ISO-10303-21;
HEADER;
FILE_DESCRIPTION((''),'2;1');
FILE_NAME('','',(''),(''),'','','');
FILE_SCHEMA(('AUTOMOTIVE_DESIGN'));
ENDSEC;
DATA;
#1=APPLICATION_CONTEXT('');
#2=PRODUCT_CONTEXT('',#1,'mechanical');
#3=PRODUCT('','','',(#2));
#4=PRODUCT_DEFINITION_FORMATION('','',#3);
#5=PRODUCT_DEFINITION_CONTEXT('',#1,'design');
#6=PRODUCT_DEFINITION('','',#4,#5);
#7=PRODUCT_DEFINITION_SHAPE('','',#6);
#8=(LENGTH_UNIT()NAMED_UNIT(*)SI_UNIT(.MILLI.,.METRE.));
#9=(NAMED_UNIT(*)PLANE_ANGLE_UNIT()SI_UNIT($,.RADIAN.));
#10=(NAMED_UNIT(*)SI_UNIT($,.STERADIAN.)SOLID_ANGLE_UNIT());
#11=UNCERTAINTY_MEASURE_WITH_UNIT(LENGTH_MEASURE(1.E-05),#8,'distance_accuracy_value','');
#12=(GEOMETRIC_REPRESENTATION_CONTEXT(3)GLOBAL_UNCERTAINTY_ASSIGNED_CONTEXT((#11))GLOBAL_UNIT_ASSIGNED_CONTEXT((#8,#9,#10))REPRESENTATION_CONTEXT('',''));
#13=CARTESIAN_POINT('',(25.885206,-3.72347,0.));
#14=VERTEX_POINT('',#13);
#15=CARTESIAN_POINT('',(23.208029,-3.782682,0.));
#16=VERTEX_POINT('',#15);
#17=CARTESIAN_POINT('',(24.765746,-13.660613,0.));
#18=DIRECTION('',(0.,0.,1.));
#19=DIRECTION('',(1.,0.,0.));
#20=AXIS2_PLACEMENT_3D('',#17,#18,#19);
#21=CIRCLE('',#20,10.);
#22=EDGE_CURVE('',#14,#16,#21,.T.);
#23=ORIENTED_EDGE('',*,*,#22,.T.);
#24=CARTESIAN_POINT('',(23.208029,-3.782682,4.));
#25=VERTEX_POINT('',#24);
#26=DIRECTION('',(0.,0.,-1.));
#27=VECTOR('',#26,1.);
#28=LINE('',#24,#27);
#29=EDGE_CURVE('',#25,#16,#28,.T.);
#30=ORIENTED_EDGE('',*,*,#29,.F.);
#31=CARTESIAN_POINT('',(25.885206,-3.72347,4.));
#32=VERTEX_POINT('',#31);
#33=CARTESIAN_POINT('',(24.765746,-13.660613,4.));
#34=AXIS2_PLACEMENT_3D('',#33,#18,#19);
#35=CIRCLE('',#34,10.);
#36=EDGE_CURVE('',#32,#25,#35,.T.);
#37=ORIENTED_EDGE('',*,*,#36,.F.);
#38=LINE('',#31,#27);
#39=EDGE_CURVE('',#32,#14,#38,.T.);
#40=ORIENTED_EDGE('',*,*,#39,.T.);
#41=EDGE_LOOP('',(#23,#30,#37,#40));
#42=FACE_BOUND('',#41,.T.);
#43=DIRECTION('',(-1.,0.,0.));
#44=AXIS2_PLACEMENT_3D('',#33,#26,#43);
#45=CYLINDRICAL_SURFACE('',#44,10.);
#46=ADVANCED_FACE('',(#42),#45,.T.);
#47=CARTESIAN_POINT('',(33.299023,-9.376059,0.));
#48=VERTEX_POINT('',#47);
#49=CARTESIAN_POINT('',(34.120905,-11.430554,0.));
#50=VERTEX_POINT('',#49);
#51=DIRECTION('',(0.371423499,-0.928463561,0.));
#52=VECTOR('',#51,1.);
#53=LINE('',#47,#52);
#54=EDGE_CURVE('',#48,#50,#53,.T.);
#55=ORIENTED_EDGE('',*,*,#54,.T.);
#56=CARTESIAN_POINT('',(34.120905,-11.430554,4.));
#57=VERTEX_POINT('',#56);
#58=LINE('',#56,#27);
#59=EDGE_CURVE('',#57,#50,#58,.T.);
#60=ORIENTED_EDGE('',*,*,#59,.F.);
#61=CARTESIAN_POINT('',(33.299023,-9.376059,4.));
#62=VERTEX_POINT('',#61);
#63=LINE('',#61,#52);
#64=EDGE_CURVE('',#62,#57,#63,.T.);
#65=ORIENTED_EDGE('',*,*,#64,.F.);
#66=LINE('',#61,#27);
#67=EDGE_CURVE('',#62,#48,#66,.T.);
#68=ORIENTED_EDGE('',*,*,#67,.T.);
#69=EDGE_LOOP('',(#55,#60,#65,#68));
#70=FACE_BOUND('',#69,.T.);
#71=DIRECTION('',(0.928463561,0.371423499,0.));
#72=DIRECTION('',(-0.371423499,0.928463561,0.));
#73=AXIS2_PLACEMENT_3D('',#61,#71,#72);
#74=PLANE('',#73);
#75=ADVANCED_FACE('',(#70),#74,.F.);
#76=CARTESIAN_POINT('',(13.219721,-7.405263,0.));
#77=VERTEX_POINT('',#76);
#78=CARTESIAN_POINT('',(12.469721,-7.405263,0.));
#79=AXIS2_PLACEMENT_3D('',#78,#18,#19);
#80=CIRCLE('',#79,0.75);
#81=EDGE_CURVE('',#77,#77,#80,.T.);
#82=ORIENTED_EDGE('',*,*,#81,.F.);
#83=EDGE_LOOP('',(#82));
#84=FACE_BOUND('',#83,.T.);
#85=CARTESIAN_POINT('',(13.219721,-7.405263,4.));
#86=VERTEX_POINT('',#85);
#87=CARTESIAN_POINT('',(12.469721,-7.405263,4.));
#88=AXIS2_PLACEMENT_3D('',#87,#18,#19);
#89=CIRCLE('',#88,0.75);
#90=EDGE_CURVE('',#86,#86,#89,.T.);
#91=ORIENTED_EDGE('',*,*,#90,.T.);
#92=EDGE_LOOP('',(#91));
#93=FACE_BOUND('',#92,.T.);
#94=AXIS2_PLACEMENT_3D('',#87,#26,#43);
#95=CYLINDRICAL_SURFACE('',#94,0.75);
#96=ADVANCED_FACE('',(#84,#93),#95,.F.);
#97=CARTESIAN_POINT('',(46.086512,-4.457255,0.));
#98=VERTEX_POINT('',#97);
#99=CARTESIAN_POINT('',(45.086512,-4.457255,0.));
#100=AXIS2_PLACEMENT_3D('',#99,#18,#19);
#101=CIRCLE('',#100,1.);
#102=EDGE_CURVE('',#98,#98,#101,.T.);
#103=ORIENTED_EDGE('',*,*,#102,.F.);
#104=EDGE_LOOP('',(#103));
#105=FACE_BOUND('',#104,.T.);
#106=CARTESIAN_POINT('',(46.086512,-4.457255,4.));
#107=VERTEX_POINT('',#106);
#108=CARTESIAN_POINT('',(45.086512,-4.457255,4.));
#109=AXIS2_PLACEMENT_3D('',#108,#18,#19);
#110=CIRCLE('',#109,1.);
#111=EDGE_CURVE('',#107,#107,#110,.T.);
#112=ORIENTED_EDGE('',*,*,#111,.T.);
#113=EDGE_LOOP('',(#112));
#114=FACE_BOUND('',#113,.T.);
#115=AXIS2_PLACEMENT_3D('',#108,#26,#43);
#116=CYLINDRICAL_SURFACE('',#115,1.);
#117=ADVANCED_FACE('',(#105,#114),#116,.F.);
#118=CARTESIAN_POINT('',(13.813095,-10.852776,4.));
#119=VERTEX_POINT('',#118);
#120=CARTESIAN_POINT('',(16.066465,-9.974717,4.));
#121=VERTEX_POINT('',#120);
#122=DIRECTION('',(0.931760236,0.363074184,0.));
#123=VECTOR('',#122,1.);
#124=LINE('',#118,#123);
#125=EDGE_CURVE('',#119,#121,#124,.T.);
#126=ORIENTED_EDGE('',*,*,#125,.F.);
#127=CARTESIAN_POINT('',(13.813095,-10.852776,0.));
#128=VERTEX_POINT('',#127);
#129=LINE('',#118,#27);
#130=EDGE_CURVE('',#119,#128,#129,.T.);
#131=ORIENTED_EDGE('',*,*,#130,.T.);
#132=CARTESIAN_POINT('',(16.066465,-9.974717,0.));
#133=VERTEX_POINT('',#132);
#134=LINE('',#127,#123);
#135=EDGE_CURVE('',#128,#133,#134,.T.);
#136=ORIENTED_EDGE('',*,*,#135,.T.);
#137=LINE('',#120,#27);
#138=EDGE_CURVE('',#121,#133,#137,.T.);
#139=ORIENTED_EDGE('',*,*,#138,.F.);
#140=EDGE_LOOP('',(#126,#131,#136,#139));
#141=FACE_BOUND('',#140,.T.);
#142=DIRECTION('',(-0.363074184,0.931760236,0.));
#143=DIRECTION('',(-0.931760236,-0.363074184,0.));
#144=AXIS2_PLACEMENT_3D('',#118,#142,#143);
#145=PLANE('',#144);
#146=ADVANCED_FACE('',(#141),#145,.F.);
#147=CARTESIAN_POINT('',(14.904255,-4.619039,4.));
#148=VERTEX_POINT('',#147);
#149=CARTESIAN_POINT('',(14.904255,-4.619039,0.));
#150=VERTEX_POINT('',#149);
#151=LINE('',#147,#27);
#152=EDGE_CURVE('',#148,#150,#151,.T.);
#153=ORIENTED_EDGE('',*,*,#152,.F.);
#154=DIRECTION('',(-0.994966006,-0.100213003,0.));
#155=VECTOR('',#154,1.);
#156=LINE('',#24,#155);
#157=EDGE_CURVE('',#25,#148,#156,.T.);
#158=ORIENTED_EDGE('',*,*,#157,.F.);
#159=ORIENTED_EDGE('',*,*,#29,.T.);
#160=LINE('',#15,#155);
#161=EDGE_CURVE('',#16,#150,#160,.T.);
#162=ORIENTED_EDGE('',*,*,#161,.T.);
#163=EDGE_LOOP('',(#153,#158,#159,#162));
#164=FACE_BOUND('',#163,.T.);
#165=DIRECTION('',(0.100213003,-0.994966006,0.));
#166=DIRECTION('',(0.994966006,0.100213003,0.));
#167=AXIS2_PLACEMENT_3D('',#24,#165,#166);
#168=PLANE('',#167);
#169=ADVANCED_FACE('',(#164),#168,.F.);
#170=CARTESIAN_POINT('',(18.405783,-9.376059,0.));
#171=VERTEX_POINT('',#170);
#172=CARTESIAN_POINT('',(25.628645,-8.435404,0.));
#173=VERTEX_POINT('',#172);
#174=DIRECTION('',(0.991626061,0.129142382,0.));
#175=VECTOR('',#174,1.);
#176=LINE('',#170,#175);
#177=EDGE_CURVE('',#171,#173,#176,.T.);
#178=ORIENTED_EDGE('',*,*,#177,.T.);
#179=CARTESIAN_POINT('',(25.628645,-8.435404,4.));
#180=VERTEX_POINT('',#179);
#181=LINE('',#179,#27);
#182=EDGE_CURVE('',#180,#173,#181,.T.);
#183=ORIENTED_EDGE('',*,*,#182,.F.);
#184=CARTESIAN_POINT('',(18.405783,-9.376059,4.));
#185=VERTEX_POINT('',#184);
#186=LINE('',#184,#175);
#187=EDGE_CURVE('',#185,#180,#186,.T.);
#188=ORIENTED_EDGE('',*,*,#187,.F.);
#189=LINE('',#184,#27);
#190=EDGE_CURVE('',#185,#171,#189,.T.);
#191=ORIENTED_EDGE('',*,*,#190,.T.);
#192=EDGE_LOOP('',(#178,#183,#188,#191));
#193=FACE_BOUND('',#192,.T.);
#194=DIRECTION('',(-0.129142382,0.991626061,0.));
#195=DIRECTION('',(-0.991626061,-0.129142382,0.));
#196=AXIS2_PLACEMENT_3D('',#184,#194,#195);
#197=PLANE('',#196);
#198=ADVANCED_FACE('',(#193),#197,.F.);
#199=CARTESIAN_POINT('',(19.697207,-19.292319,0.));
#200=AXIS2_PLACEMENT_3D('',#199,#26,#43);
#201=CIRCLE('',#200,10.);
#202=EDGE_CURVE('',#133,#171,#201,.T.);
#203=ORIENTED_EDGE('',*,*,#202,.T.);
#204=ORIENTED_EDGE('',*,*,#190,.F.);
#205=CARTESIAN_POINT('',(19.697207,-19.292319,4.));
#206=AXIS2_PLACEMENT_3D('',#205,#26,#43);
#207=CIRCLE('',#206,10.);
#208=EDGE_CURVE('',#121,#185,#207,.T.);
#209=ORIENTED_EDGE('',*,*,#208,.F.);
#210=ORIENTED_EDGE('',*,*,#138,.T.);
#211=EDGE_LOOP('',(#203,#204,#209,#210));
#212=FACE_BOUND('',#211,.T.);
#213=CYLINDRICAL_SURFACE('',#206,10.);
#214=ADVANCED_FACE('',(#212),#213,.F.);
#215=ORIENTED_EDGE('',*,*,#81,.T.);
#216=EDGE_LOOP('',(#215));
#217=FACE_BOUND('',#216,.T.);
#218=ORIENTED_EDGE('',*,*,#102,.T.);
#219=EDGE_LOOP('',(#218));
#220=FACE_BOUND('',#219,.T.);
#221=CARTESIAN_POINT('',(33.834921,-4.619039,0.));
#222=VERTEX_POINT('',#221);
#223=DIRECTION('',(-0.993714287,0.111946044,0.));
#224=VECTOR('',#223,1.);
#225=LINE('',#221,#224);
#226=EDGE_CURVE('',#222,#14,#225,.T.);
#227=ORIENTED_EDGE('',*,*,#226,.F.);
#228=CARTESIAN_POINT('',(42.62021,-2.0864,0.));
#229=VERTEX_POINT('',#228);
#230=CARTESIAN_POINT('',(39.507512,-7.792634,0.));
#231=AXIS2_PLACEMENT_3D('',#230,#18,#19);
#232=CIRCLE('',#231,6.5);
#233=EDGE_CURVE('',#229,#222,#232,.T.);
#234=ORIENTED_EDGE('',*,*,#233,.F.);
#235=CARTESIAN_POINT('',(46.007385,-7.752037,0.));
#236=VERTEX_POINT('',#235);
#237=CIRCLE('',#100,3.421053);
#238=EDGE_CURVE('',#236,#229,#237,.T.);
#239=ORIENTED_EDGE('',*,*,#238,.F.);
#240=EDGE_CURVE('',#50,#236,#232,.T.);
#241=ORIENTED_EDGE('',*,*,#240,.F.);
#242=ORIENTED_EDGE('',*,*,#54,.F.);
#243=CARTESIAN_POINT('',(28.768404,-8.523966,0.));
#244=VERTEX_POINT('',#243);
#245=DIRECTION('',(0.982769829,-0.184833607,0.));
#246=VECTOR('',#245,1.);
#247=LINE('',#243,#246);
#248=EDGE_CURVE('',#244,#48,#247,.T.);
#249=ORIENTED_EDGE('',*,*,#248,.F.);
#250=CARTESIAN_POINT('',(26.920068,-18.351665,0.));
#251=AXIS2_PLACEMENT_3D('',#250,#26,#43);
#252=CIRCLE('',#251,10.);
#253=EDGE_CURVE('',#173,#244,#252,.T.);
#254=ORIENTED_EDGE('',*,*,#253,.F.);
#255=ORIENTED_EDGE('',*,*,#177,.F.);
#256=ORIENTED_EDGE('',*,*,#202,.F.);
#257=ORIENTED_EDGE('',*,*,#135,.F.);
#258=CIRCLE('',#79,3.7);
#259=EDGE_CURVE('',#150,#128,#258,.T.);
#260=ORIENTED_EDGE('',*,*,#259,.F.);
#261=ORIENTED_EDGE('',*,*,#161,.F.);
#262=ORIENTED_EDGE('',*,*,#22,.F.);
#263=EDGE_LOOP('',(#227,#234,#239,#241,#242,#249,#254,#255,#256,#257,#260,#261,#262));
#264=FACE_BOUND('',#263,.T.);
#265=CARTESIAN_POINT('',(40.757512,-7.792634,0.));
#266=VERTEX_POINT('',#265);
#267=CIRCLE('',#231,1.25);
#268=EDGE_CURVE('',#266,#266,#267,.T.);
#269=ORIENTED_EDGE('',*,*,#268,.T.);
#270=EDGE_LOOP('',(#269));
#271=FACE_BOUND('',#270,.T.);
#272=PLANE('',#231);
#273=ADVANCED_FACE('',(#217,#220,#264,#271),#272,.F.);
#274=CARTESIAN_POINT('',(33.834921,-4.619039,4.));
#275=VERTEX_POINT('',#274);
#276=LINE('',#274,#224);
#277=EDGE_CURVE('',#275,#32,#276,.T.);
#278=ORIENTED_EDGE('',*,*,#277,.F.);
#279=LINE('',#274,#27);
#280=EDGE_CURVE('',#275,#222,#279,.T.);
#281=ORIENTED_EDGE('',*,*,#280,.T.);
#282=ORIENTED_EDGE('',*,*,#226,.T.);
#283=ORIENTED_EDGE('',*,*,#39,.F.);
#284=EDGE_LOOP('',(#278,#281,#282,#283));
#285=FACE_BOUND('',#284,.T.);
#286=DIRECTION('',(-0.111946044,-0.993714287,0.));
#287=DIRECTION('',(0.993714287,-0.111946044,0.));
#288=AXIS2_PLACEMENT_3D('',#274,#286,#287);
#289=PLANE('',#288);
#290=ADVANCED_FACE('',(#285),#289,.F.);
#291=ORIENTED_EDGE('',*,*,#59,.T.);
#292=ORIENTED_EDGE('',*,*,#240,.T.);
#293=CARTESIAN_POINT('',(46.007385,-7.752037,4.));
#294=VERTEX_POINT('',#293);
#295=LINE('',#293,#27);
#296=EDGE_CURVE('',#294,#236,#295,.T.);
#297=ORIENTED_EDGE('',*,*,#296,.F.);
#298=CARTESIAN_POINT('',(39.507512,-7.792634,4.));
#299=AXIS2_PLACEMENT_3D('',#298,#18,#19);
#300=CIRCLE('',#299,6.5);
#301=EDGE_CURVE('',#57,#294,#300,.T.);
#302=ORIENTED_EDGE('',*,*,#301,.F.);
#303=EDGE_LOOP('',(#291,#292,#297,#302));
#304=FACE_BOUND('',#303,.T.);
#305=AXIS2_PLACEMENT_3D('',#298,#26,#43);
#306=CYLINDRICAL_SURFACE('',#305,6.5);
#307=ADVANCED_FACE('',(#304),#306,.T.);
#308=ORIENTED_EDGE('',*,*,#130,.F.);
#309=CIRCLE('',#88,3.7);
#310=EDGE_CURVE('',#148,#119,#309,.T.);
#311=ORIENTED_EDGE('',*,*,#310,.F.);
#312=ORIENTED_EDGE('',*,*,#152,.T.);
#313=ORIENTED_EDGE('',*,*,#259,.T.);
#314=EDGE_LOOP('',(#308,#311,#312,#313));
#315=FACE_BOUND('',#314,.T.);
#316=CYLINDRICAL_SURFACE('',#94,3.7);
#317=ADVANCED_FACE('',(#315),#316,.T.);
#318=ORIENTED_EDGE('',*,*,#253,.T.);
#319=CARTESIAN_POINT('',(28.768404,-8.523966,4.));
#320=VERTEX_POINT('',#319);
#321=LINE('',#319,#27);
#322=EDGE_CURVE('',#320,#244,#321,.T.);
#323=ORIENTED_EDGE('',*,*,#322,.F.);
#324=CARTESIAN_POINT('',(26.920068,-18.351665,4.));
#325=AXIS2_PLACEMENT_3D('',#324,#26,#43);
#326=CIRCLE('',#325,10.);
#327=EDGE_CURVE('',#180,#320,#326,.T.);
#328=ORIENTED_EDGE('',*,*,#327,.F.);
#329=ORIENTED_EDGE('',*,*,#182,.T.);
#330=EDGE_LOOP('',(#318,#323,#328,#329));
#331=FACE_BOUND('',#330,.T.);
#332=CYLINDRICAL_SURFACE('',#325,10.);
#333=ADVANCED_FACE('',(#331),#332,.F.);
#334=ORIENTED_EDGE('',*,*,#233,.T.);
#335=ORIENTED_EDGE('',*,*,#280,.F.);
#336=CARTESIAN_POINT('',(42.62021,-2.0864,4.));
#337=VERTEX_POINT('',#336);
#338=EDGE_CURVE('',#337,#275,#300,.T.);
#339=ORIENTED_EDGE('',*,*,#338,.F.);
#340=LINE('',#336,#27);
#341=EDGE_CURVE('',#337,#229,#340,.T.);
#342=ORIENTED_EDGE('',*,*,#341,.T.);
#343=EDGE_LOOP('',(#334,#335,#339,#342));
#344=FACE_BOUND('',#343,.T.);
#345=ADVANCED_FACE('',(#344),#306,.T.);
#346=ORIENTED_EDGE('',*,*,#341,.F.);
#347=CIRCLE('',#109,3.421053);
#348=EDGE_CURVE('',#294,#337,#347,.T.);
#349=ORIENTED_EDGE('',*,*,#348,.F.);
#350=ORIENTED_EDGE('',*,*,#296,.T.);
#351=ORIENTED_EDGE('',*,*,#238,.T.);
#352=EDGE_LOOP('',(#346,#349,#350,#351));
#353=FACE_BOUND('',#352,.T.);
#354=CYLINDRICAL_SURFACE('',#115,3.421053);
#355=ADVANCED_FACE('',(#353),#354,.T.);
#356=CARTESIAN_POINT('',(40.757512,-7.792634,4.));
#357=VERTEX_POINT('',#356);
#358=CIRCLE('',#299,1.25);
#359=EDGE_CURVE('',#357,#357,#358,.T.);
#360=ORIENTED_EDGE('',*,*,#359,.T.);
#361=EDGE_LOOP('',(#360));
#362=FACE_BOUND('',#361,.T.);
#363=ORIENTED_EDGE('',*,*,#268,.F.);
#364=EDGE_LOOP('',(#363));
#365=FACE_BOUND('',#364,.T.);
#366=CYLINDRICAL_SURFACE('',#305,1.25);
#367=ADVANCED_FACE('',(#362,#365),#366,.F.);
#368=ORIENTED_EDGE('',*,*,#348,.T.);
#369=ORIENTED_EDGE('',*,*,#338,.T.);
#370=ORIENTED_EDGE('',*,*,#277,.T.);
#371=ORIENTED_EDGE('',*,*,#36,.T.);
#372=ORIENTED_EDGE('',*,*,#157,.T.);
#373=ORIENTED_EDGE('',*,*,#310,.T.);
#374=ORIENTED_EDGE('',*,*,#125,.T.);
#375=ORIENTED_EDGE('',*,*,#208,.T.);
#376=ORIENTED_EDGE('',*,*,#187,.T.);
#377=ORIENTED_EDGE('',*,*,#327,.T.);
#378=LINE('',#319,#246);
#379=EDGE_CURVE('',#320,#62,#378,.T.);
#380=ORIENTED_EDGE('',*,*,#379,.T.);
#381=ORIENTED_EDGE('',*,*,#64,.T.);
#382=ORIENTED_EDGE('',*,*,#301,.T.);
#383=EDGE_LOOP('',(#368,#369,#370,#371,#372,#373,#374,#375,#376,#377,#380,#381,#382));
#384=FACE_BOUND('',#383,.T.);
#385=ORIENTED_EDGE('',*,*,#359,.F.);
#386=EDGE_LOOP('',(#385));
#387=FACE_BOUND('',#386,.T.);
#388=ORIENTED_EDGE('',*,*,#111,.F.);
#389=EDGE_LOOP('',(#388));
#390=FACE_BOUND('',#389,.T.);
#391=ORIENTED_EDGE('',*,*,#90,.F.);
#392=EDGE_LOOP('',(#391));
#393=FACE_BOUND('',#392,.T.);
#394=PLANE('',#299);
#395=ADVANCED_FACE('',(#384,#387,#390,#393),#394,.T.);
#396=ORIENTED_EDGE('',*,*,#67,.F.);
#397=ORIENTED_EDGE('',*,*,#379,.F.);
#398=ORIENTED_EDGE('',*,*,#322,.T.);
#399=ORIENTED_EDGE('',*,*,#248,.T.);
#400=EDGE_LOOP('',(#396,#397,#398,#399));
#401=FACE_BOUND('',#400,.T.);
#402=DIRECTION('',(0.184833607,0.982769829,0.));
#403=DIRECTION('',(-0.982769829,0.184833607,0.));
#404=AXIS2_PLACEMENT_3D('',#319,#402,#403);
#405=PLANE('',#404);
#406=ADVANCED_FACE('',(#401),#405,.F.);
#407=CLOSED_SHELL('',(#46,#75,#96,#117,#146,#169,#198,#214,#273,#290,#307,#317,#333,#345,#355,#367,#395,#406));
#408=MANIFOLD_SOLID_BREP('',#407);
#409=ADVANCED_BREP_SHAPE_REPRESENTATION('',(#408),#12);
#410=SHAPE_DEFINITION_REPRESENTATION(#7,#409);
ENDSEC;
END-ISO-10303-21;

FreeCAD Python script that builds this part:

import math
import FreeCAD as App
import Part
import Sketcher

V = App.Vector
Q = App.Units.Quantity

doc = App.newDocument("Part")
body = doc.addObject("PartDesign::Body", "Body")

# Sketch on XY plane
sketch1 = body.newObject("Sketcher::SketchObject", "Sketch")
sketch1.AttachmentSupport = (doc.getObject("XY_Plane"), [""])
sketch1.MapMode = "FlatFace"
sketch1.addGeometry([
    Part.LineSegment(V(18.405783, -9.376059, 0), V(25.628645, -8.435404, 0)),  # 0
    Part.ArcOfCircle(Part.Circle(V(26.920068, -18.351665, 0), V(0, 0, 1), 10), math.radians(79.348569), math.radians(97.420037)),  # 1
    Part.LineSegment(V(28.768404, -8.523966, 0), V(33.299023, -9.376059, 0)),  # 2
    Part.LineSegment(V(33.299023, -9.376059, 0), V(34.120905, -11.430554, 0)),  # 3
    Part.ArcOfCircle(Part.Circle(V(39.507512, -7.792634, 0), V(0, 0, 1), 6.5), math.radians(-145.966326), math.radians(0.357849)),  # 4
    Part.ArcOfCircle(Part.Circle(V(45.086512, -4.457255, 0), V(0, 0, 1), 3.421053), math.radians(-74.384628), math.radians(136.130419)),  # 5
    Part.ArcOfCircle(Part.Circle(V(39.507512, -7.792634, 0), V(0, 0, 1), 6.5), math.radians(61.387942), math.radians(150.774678)),  # 6
    Part.LineSegment(V(33.834921, -4.619039, 0), V(25.885206, -3.72347, 0)),  # 7
    Part.ArcOfCircle(Part.Circle(V(24.765746, -13.660613, 0), V(0, 0, 1), 10), math.radians(83.572491), math.radians(98.961553)),  # 8
    Part.LineSegment(V(23.208029, -3.782682, 0), V(14.904255, -4.619039, 0)),  # 9
    Part.ArcOfCircle(Part.Circle(V(12.469721, -7.405263, 0), V(0, 0, 1), 3.7), math.radians(48.85384), math.radians(291.289113)),  # 10
    Part.LineSegment(V(13.813095, -10.852776, 0), V(16.066465, -9.974717, 0)),  # 11
    Part.ArcOfCircle(Part.Circle(V(19.697207, -19.292319, 0), V(0, 0, 1), 10), math.radians(97.420037), math.radians(111.289113)),  # 12
    Part.Circle(V(12.469721, -7.405263, 0), V(0, 0, 1), 0.75),  # 13
    Part.Circle(V(39.507512, -7.792634, 0), V(0, 0, 1), 1.25),  # 14
    Part.Circle(V(45.086512, -4.457255, 0), V(0, 0, 1), 1),  # 15
], False)
sketch1.addConstraint([
    Sketcher.Constraint("Tangent", 0, 2, 1, 2),
    Sketcher.Constraint("Tangent", 1, 1, 2, 1),
    Sketcher.Constraint("Coincident", 2, 2, 3, 1),
    Sketcher.Constraint("Coincident", 3, 2, 4, 1),
    Sketcher.Constraint("Coincident", 4, 2, 5, 1),
    Sketcher.Constraint("Coincident", 5, 2, 6, 1),
    Sketcher.Constraint("Coincident", 6, 2, 7, 1),
    Sketcher.Constraint("Tangent", 7, 2, 8, 1),
    Sketcher.Constraint("Coincident", 8, 2, 9, 1),
    Sketcher.Constraint("Coincident", 9, 2, 10, 1),
    Sketcher.Constraint("Tangent", 10, 2, 11, 1),
    Sketcher.Constraint("Tangent", 11, 2, 12, 2),
    Sketcher.Constraint("Tangent", 12, 1, 0, 1),
    Sketcher.Constraint("Coincident", 6, 3, 4, 3),
    Sketcher.Constraint("Coincident", 13, 3, 10, 3),
    Sketcher.Constraint("Coincident", 14, 3, 4, 3),
    Sketcher.Constraint("Coincident", 15, 3, 5, 3),
    Sketcher.Constraint("Equal", 4, 6),
    Sketcher.Constraint("Equal", 1, 8),
    Sketcher.Constraint("Equal", 8, 12),
    Sketcher.Constraint("Horizontal", 6, 2, 9, 2),
    Sketcher.Constraint("Horizontal", 2, 2, 12, 1),
    Sketcher.Constraint("Diameter", 15, Q("2 mm")),
    Sketcher.Constraint("Radius", 1, Q("10 mm")),
    Sketcher.Constraint("Diameter", 13, Q("1.5 mm")),
    Sketcher.Constraint("Diameter", 14, Q("2.5 mm")),
    Sketcher.Constraint("Radius", 4, Q("6.5 mm")),
    Sketcher.Constraint("Radius", 10, Q("3.7 mm")),
    Sketcher.Constraint("Distance", 7, Q("8 mm")),
    Sketcher.Constraint("Radius", 5, Q("3.421053 mm")),
    Sketcher.Constraint("DistanceX", 4, 3, 5, 3, Q("5.579 mm")),
    Sketcher.Constraint("Distance", 11, Q("2.418401 mm")),
    Sketcher.Constraint("DistanceY", 5, 2, -1, 1, Q("2.0864 mm")),
    Sketcher.Constraint("DistanceY", 1, 3, 10, 3, Q("10.946402 mm")),
    Sketcher.Constraint("DistanceX", 8, 3, 0, 2, Q("0.862899 mm")),
    Sketcher.Constraint("DistanceY", 1, 3, 1, 1, Q("9.827698 mm")),
    Sketcher.Constraint("DistanceX", 1, 1, 3, 2, Q("5.352501 mm")),
    Sketcher.Constraint("DistanceX", 4, 3, 5, 2, Q("3.112698 mm")),
    Sketcher.Constraint("DistanceX", 2, 2, 6, 2, Q("0.535898 mm")),
    Sketcher.Constraint("DistanceX", 7, 2, 1, 1, Q("2.883198 mm")),
    Sketcher.Constraint("Distance", 2, Q("4.61005 mm")),
    Sketcher.Constraint("Distance", 3, Q("2.212791 mm")),
    Sketcher.Constraint("DistanceX", -1, 1, 1, 3, Q("26.920068 mm")),
    Sketcher.Constraint("DistanceY", 12, 3, -1, 1, Q("19.292319 mm")),
    Sketcher.Constraint("DistanceX", -1, 1, 8, 2, Q("23.208029 mm")),
])
pad1 = body.newObject("PartDesign::Pad", "Pad")
pad1.Profile = sketch1
pad1.Length = 4

doc.recompute()
